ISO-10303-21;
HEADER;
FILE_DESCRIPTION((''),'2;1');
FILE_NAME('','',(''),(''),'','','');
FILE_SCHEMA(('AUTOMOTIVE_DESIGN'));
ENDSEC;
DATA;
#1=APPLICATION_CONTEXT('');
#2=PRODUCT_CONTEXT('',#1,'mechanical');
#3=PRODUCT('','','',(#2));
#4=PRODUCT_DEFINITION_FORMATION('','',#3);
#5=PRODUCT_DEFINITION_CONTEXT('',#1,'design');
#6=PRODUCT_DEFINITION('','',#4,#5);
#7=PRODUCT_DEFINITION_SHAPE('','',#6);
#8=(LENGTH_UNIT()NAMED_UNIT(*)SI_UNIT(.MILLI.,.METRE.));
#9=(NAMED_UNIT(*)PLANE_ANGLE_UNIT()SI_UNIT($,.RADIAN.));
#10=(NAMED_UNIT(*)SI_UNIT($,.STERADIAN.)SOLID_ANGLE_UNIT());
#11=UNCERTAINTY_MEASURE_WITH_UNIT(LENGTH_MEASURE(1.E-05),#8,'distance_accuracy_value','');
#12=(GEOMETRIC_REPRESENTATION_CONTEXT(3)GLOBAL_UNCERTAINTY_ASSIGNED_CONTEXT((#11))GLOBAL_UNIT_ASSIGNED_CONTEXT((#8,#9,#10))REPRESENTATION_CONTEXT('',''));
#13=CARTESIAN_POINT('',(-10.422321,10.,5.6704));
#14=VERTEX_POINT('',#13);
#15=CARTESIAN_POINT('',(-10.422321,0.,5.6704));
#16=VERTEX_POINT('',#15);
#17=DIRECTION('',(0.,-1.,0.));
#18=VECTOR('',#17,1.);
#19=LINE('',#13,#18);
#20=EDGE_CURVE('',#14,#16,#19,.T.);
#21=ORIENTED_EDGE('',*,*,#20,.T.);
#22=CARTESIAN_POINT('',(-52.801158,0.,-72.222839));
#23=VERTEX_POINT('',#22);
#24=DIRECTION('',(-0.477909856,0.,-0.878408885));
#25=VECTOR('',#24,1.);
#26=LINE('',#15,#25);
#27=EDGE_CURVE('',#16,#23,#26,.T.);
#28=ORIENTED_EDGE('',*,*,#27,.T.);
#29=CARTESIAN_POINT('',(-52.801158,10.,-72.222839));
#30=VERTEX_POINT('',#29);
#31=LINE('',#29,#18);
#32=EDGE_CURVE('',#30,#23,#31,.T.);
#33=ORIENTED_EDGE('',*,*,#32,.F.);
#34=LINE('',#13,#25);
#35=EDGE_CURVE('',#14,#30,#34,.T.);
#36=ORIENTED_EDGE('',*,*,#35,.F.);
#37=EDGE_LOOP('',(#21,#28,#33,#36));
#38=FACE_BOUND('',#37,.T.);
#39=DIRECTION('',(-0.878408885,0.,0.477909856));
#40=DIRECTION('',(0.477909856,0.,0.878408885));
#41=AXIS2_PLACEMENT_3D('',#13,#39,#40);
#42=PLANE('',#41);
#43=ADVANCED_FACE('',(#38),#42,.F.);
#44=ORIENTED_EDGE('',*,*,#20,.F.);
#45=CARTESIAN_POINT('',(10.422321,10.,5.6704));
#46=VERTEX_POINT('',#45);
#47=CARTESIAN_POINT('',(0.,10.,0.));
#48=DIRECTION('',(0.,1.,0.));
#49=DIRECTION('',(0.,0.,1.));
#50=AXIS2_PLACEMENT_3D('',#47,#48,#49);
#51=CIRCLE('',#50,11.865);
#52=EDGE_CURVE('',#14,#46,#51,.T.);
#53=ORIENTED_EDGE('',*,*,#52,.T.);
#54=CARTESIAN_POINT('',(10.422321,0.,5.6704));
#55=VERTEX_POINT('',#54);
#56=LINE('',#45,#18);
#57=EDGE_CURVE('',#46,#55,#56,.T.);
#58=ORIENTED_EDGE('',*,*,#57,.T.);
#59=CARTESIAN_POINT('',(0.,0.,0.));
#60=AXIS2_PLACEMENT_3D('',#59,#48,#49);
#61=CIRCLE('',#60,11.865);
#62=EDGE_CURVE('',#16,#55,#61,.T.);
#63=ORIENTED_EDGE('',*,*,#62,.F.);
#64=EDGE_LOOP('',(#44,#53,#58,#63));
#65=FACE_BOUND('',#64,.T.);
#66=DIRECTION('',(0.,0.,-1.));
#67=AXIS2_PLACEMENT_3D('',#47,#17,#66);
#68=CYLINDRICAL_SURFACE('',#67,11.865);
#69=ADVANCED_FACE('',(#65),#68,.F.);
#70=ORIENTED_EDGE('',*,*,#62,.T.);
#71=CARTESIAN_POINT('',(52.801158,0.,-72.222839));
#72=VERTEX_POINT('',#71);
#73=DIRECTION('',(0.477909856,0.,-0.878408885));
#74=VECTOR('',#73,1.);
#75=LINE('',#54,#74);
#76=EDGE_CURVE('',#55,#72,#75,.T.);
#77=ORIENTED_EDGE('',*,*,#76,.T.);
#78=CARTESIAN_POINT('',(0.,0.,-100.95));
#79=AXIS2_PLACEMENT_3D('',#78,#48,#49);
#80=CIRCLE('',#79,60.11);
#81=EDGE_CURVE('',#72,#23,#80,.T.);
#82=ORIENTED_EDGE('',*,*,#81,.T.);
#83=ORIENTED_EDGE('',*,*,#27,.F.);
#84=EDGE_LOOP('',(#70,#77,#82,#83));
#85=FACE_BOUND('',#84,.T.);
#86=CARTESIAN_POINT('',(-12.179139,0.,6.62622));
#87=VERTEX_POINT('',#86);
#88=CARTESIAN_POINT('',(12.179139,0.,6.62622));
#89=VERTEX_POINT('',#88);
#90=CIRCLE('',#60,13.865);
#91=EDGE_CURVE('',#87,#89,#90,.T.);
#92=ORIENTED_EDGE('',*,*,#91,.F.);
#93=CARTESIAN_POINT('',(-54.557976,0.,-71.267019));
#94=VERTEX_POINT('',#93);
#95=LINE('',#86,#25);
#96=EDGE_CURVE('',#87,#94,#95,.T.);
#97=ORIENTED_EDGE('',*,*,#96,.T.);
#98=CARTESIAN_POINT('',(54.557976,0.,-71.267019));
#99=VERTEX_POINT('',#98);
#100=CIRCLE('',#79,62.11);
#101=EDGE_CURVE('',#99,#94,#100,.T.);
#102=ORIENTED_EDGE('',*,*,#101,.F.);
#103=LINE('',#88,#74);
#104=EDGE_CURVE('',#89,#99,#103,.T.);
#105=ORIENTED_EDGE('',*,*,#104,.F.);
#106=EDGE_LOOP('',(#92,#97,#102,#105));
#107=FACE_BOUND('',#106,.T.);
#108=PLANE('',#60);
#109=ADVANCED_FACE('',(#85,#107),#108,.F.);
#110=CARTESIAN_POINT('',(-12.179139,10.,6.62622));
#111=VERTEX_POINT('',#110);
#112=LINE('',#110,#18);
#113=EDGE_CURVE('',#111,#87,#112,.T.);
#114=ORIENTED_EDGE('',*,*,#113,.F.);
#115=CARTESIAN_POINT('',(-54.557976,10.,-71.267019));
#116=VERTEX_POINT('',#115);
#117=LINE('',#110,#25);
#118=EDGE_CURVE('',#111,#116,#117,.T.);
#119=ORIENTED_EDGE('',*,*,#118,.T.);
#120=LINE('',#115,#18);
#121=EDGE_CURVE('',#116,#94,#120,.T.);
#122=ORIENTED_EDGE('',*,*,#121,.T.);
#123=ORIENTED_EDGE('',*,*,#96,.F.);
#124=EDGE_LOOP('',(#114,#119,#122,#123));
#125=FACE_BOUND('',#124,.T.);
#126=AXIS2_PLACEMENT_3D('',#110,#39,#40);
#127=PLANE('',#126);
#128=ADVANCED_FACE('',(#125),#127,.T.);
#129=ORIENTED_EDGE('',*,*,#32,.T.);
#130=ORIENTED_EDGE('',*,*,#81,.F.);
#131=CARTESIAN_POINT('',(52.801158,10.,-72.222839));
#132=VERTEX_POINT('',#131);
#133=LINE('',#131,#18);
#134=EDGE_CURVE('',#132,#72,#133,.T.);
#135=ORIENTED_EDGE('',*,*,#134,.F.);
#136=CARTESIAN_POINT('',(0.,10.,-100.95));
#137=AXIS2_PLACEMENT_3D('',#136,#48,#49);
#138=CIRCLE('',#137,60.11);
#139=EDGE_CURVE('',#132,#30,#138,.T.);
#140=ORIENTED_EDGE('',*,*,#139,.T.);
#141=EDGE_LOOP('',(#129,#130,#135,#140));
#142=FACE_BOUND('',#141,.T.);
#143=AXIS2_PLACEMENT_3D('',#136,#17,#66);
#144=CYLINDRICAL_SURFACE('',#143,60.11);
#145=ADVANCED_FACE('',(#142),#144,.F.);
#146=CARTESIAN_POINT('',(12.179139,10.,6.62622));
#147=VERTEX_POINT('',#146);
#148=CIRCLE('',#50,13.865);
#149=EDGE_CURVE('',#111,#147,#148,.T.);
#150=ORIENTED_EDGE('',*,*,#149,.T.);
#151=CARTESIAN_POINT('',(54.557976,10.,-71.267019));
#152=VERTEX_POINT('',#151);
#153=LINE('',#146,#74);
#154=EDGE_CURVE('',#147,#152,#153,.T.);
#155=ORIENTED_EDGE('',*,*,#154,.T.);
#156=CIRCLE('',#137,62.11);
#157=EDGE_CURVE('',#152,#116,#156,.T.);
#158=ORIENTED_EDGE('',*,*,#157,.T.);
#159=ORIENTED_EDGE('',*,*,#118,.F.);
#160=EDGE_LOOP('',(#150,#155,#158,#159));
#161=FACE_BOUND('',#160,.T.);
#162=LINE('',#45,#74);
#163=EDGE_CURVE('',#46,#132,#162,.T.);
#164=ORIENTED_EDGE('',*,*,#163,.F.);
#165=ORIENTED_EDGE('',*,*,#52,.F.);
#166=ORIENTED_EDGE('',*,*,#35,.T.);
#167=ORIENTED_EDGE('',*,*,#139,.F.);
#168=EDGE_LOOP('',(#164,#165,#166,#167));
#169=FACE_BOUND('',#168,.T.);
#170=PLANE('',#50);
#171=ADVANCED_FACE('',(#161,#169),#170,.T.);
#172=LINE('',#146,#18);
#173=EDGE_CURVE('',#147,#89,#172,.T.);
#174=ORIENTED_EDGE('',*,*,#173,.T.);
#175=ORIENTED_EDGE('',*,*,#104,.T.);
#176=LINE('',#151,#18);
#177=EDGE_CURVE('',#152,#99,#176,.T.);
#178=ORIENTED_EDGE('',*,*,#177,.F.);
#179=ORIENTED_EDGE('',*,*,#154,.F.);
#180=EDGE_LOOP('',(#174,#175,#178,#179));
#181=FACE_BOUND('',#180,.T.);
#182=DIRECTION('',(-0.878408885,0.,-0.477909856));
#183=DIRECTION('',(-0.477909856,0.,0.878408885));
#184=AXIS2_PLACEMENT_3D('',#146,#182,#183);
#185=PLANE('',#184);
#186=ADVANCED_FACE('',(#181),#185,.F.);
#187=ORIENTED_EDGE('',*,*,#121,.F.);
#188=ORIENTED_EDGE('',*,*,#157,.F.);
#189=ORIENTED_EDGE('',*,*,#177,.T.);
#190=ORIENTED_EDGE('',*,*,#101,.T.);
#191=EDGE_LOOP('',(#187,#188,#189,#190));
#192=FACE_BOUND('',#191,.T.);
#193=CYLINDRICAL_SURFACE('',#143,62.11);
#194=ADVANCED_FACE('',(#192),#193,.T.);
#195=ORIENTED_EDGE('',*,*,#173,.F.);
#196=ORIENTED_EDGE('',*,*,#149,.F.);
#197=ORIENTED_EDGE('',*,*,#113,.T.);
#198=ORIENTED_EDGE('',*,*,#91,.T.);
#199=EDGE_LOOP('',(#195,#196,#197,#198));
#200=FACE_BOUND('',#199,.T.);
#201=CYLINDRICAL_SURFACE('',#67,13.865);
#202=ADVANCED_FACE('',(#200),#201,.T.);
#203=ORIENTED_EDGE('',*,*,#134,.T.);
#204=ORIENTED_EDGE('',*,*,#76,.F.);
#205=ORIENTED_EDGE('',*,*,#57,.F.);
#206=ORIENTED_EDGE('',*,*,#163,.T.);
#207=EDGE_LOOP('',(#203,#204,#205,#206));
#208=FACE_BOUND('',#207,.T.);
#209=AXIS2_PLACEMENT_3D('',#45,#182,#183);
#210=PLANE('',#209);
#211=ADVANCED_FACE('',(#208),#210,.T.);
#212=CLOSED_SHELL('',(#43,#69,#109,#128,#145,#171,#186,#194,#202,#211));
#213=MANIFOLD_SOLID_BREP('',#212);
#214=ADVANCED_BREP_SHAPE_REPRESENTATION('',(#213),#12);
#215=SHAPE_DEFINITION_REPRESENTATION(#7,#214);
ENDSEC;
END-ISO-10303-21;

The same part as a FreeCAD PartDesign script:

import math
import FreeCAD as App
import Part
import Sketcher

V = App.Vector
Q = App.Units.Quantity

doc = App.newDocument("Part")
body = doc.addObject("PartDesign::Body", "Body")

sketch1 = body.newObject("Sketcher::SketchObject", "Sketch")
sketch1.AttachmentSupport = (doc.getObject("XZ_Plane"), [""])
sketch1.MapMode = "FlatFace"
sketch1.addGeometry([
    Part.LineSegment(V(12, 7, 0), V(55, -71, 0)),
    Part.ArcOfCircle(Part.Circle(V(0, -101, 0), V(0, 0, 1), 62), math.radians(151), math.radians(389)),
    Part.LineSegment(V(-55, -71, 0), V(-12, 7, 0)),
    Part.ArcOfCircle(Part.Circle(V(0, 0, 0), V(0, 0, 1), 14), math.radians(29), math.radians(151)),
    Part.ArcOfCircle(Part.Circle(V(0, -101, 0), V(0, 0, 1), 60), math.radians(151), math.radians(389)),
    Part.LineSegment(V(53, -72, 0), V(10, 6, 0)),
    Part.ArcOfCircle(Part.Circle(V(0, 0, 0), V(0, 0, 1), 12), math.radians(29), math.radians(151)),
    Part.LineSegment(V(-10, 6, 0), V(-53, -72, 0)),
], False)
sketch1.addConstraint([
    Sketcher.Constraint("Tangent", 0, 2, 1, 2),
    Sketcher.Constraint("Tangent", 1, 1, 2, 1),
    Sketcher.Constraint("Tangent", 2, 2, 3, 2),
    Sketcher.Constraint("Tangent", 3, 1, 0, 1),
    Sketcher.Constraint("Tangent", 4, 2, 5, 1),
    Sketcher.Constraint("Tangent", 5, 2, 6, 1),
    Sketcher.Constraint("Tangent", 6, 2, 7, 1),
    Sketcher.Constraint("Tangent", 7, 2, 4, 1),
    Sketcher.Constraint("Coincident", 3, 3, -1, 1),
    Sketcher.Constraint("Coincident", 6, 3, -1, 1),
    Sketcher.Constraint("Coincident", 4, 3, 1, 3),
    Sketcher.Constraint("PointOnObject", 1, 3, -2),
    Sketcher.Constraint("Parallel", 0, 5),
    Sketcher.Constraint("Radius", 1, Q("62.11 mm")),
    Sketcher.Constraint("Radius", 4, Q("60.11 mm")),
    Sketcher.Constraint("Radius", 3, Q("13.865 mm")),
    Sketcher.Constraint("DistanceY", 1, 3, -1, 1, Q("100.95 mm")),
])
pad1 = body.newObject("PartDesign::Pad", "Pad")
pad1.Profile = sketch1
pad1.Length = 10
pad1.Reversed = True

doc.recompute()
